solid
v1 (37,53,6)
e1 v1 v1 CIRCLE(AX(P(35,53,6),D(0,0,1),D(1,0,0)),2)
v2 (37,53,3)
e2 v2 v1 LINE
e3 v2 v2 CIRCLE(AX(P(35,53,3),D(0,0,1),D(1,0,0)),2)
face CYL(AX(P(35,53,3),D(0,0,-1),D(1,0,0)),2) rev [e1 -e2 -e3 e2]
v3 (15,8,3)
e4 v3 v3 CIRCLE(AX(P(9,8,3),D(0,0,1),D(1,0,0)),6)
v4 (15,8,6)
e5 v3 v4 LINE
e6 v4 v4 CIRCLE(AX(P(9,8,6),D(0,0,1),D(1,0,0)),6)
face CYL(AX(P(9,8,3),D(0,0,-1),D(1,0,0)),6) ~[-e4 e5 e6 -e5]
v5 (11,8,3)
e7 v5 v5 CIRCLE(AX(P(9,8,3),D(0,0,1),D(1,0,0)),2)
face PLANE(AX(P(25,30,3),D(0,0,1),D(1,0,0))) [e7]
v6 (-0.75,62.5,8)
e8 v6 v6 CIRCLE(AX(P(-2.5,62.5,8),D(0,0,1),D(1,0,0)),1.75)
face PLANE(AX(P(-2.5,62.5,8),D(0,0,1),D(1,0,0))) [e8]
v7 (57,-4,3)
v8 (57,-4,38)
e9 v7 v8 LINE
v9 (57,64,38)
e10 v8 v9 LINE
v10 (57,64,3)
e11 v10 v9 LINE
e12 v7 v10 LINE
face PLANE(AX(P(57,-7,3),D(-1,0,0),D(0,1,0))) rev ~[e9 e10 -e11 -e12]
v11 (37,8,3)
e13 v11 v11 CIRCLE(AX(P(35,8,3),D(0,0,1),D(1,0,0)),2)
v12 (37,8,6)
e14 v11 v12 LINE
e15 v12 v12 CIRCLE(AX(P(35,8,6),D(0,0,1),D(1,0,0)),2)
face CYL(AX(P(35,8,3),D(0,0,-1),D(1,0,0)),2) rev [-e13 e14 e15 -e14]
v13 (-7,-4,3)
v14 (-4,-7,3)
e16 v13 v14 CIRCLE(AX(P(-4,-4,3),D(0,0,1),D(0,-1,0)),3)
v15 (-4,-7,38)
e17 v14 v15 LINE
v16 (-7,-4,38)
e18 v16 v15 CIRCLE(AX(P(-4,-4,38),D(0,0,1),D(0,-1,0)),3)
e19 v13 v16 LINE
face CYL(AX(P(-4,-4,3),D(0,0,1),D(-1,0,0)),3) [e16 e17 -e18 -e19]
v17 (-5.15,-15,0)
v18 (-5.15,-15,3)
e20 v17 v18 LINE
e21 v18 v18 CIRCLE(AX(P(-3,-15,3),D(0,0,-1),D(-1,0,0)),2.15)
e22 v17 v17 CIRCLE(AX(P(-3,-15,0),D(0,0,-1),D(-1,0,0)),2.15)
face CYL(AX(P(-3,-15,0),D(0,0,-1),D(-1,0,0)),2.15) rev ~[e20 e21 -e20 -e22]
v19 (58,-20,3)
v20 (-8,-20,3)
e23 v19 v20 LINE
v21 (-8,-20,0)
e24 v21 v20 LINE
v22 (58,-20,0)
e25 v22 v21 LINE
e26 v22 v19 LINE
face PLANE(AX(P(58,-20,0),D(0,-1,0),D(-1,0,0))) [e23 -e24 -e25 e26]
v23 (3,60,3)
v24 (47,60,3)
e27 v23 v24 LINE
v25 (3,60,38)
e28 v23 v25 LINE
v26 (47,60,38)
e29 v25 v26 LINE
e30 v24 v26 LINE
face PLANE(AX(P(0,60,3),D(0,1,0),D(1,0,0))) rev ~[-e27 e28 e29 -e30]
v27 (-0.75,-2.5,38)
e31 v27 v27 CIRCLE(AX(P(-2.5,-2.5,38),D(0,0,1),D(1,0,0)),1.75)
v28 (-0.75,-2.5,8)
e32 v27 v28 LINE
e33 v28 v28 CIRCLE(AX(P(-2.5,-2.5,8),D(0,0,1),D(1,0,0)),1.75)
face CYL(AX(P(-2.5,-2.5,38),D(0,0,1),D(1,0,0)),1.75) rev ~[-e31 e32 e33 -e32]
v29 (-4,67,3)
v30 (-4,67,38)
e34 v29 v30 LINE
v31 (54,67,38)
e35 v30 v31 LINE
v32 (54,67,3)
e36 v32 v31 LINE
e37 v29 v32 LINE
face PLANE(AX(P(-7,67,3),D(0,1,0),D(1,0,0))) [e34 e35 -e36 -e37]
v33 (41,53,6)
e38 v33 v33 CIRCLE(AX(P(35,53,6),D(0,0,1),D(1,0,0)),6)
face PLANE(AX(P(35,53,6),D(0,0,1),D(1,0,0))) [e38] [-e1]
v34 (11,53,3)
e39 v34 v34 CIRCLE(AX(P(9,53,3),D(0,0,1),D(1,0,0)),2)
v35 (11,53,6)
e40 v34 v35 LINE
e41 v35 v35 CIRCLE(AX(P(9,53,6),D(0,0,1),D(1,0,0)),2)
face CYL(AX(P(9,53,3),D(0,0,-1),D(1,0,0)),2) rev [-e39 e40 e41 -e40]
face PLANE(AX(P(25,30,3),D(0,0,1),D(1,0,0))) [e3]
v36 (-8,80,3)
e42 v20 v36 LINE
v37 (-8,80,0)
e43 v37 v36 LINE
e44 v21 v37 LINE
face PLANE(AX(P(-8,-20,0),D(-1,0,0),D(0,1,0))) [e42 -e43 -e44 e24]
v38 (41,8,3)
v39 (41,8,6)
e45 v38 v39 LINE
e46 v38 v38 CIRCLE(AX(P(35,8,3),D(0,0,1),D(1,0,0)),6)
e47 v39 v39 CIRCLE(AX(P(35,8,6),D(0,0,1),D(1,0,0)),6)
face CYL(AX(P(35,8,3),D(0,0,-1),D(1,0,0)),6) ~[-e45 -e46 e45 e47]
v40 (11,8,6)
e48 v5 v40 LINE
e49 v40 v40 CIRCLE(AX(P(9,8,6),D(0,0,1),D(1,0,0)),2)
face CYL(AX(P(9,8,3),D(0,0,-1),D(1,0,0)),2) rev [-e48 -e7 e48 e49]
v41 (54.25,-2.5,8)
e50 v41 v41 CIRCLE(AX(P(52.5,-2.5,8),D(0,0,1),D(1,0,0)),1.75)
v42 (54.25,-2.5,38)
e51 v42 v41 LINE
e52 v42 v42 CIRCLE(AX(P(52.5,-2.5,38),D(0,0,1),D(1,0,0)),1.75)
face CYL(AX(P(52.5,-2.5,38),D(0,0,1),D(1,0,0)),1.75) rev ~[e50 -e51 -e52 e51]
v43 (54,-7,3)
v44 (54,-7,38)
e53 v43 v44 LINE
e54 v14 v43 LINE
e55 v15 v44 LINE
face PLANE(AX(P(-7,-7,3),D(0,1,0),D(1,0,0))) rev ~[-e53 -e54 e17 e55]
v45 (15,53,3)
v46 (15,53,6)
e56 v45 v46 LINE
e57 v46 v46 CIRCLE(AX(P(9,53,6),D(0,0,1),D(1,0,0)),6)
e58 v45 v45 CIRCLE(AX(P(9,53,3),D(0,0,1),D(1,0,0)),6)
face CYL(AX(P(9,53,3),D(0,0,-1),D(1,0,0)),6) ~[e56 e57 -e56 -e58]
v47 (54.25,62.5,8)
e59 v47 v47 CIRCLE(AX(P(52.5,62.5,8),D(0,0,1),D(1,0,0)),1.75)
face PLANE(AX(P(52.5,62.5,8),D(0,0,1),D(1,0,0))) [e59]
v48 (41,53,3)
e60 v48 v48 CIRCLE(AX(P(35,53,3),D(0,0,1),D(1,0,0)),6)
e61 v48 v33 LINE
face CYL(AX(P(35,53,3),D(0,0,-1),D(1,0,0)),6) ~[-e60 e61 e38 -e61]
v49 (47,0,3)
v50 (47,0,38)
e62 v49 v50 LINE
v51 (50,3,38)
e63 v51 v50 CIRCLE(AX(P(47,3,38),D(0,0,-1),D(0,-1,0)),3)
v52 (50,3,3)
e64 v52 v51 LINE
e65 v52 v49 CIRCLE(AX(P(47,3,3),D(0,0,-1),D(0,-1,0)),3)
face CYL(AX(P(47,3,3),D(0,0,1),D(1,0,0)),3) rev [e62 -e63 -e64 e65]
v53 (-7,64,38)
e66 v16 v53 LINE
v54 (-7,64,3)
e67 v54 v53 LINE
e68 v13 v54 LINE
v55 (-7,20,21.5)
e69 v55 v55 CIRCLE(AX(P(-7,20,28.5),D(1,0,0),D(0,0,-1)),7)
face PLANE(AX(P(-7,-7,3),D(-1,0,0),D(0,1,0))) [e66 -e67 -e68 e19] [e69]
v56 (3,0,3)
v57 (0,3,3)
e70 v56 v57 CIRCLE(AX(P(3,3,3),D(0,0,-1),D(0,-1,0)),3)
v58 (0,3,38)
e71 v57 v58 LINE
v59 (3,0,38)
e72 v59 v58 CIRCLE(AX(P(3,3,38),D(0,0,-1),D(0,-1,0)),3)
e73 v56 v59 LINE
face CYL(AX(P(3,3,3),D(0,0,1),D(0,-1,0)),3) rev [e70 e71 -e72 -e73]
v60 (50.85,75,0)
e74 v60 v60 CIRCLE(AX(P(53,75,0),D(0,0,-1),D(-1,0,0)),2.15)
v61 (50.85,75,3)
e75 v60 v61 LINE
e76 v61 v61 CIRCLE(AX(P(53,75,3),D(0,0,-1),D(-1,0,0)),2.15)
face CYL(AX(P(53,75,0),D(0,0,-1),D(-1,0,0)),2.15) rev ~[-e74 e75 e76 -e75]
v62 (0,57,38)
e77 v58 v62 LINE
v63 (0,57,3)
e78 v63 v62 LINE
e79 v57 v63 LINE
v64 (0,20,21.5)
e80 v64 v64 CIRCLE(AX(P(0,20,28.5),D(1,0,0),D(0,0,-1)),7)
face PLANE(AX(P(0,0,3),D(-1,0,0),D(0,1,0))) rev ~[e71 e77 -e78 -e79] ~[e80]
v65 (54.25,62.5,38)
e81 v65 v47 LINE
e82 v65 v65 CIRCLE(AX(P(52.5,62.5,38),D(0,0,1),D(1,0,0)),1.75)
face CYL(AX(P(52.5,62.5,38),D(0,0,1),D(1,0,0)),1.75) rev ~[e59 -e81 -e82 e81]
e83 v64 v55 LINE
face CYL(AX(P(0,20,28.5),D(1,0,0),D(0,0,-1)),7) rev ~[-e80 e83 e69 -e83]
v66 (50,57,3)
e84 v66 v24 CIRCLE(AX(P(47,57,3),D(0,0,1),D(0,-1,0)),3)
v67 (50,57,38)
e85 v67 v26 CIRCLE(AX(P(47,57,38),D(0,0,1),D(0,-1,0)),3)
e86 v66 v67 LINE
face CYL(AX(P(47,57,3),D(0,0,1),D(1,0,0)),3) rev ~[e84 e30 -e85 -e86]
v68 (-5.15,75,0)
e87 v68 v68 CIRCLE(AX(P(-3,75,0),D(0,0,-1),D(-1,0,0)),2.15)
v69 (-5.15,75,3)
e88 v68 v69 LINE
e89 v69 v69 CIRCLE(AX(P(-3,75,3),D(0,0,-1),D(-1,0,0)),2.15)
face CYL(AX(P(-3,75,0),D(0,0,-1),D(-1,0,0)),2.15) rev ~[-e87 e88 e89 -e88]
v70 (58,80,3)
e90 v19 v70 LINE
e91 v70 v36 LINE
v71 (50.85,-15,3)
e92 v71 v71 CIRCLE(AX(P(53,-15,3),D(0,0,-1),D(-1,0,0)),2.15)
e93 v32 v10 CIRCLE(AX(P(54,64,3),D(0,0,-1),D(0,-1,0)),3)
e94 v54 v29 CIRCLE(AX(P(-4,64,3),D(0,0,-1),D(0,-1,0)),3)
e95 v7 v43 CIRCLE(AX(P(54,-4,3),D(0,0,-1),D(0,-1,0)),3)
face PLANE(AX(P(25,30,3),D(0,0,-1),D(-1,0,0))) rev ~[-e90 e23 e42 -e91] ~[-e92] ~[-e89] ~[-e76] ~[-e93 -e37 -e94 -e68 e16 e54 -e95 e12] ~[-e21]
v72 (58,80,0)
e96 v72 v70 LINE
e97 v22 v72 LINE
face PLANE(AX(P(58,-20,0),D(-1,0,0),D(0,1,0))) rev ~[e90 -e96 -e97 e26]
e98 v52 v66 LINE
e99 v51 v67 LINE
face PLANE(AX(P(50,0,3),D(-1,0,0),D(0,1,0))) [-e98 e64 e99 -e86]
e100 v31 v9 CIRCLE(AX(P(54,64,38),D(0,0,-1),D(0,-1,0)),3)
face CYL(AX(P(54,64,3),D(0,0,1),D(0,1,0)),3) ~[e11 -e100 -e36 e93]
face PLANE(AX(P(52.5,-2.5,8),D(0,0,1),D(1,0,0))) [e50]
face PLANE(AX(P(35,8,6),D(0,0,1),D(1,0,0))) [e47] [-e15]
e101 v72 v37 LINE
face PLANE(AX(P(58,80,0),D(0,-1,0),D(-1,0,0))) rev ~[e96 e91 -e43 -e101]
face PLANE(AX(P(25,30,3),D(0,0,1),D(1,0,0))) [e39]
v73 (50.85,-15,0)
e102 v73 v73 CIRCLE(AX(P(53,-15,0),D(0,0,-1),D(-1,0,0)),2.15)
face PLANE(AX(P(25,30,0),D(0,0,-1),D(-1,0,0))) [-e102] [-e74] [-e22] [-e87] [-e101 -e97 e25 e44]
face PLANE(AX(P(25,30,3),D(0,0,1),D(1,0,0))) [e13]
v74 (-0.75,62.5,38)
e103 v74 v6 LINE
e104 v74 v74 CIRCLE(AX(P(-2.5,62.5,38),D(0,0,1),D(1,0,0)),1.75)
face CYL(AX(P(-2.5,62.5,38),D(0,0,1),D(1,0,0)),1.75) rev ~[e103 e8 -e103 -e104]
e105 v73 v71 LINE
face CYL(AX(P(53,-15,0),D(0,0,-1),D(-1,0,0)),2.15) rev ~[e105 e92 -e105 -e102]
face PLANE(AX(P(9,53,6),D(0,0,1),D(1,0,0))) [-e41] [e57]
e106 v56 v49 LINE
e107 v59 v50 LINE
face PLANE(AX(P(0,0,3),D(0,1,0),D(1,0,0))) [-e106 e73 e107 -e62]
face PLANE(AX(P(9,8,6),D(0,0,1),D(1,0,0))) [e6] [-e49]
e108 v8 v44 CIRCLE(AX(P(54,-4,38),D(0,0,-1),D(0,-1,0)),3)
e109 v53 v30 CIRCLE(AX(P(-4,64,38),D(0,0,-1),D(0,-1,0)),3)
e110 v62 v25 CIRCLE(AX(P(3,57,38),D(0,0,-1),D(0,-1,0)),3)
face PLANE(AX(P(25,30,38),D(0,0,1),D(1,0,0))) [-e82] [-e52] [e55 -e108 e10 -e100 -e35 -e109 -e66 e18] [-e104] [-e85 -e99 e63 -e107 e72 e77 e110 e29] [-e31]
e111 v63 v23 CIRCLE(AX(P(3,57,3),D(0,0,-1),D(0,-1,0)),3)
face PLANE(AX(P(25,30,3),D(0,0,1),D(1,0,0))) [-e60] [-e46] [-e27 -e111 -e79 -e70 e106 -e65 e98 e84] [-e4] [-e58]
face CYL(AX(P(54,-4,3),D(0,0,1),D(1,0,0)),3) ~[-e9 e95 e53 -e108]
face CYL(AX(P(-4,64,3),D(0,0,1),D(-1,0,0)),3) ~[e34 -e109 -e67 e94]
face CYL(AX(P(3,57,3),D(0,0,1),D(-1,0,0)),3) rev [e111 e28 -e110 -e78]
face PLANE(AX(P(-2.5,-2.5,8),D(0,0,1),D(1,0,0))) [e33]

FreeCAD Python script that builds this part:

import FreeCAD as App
import Part
import Sketcher

V = App.Vector
Q = App.Units.Quantity


def edges_at(feature, points):
    """Names of the edges that pass closest to the given points."""
    edges = feature.Shape.Edges
    near = lambda p: min(range(len(edges)), key=lambda i: edges[i].distToShape(Part.Vertex(*p))[0])
    return sorted({f"Edge{near(p) + 1}" for p in points})


def add_polygon(sketch, points):
    """Adds a closed chain of lines whose ends are joined by coincident constraints."""
    first, n = sketch.GeometryCount, len(points)
    for a, b in zip(points, points[1:] + points[:1]):
        sketch.addGeometry(Part.LineSegment(App.Vector(*a, 0), App.Vector(*b, 0)), False)
    for i in range(n):
        sketch.addConstraint(Sketcher.Constraint("Coincident", first + i, 2, first + (i + 1) % n, 1))

doc = App.newDocument("Part")
body = doc.addObject("PartDesign::Body", "Body")

# Sketch on XY plane
sketch1 = body.newObject("Sketcher::SketchObject", "Sketch")
sketch1.AttachmentSupport = (doc.getObject("XY_Plane"), [""])
sketch1.MapMode = "FlatFace"
add_polygon(sketch1, [(0, 60), (0, 0), (50, 0), (50, 60)])  # lines 0-3
sketch1.addConstraint(Sketcher.Constraint("Vertical", 0))
sketch1.addConstraint(Sketcher.Constraint("Horizontal", 1))
sketch1.addConstraint(Sketcher.Constraint("Vertical", 2))
sketch1.addConstraint(Sketcher.Constraint("Horizontal", 3))
sketch1.addConstraint(Sketcher.Constraint("Coincident", 0, 2, -1, 1))
sketch1.addConstraint(Sketcher.Constraint("DistanceX", 1, 1, 1, 2, Q("50 mm")))
sketch1.addConstraint(Sketcher.Constraint("DistanceY", 0, 2, 0, 1, Q("60 mm")))
pad1 = body.newObject("PartDesign::Pad", "Pad")
pad1.Profile = sketch1
pad1.Length = 3
body2 = doc.addObject("PartDesign::Body", "Body001")

# Sketch on XY plane
sketch2 = body2.newObject("Sketcher::SketchObject", "Sketch001")
sketch2.AttachmentSupport = (doc.getObject("XY_Plane001"), [""])
sketch2.MapMode = "FlatFace"
sketch2.AttachmentOffset = App.Placement(V(0, 0, 3), App.Rotation())
add_polygon(sketch2, [(-7, 67), (-7, -7), (57, -7), (57, 67)])  # lines 0-3
add_polygon(sketch2, [(50, 0), (0, 0), (0, 60), (50, 60)])  # lines 4-7
sketch2.addConstraint(Sketcher.Constraint("Vertical", 0))
sketch2.addConstraint(Sketcher.Constraint("Horizontal", 1))
sketch2.addConstraint(Sketcher.Constraint("Vertical", 2))
sketch2.addConstraint(Sketcher.Constraint("Horizontal", 3))
sketch2.addConstraint(Sketcher.Constraint("Horizontal", 4))
sketch2.addConstraint(Sketcher.Constraint("Vertical", 5))
sketch2.addConstraint(Sketcher.Constraint("Horizontal", 6))
sketch2.addConstraint(Sketcher.Constraint("Vertical", 7))
sketch2.addConstraint(Sketcher.Constraint("Coincident", 4, 2, -1, 1))
sketch2.addConstraint(Sketcher.Constraint("DistanceX", 1, 1, 1, 2, Q("64 mm")))
sketch2.addConstraint(Sketcher.Constraint("DistanceX", 4, 2, 4, 1, Q("50 mm")))
sketch2.addConstraint(Sketcher.Constraint("DistanceY", 0, 2, 0, 1, Q("74 mm")))
sketch2.addConstraint(Sketcher.Constraint("DistanceY", 5, 1, 5, 2, Q("60 mm")))
sketch2.addConstraint(Sketcher.Constraint("DistanceX", 0, 2, -1, 1, Q("7 mm")))
sketch2.addConstraint(Sketcher.Constraint("DistanceY", 0, 2, -1, 1, Q("7 mm")))
pad2 = body2.newObject("PartDesign::Pad", "Pad001")
pad2.Profile = sketch2
pad2.Length = 35
body.AllowCompound = True
doc.recompute()

boolean = body.newObject("PartDesign::Boolean", "Boolean")
boolean.Type = "Fuse"
boolean.addObjects([body2])

# Sketch on XY plane
sketch3 = body.newObject("Sketcher::SketchObject", "Sketch002")
sketch3.AttachmentSupport = (doc.getObject("XY_Plane"), [""])
sketch3.MapMode = "FlatFace"
add_polygon(sketch3, [(58, 80), (58, -20), (-8, -20), (-8, 80)])  # lines 0-3
sketch3.addGeometry(Part.Circle(V(53, -15, 0), V(0, 0, 1), 2.15), False)  # 4
sketch3.addGeometry(Part.Circle(V(-3, -15, 0), V(0, 0, 1), 2.15), False)  # 5
sketch3.addGeometry(Part.Circle(V(53, 75, 0), V(0, 0, 1), 2.15), False)  # 6
add_polygon(sketch3, [(0, 0), (50, 0), (50, 60), (0, 60)])  # lines 7-10
sketch3.addGeometry(Part.Circle(V(-3, 75, 0), V(0, 0, 1), 2.15), False)  # 11
sketch3.addConstraint(Sketcher.Constraint("Vertical", 0))
sketch3.addConstraint(Sketcher.Constraint("Horizontal", 1))
sketch3.addConstraint(Sketcher.Constraint("Vertical", 2))
sketch3.addConstraint(Sketcher.Constraint("Horizontal", 3))
sketch3.addConstraint(Sketcher.Constraint("Horizontal", 7))
sketch3.addConstraint(Sketcher.Constraint("Vertical", 8))
sketch3.addConstraint(Sketcher.Constraint("Horizontal", 9))
sketch3.addConstraint(Sketcher.Constraint("Vertical", 10))
sketch3.addConstraint(Sketcher.Constraint("Coincident", 10, 2, -1, 1))
sketch3.addConstraint(Sketcher.Constraint("Equal", 4, 5))
sketch3.addConstraint(Sketcher.Constraint("Equal", 5, 6))
sketch3.addConstraint(Sketcher.Constraint("Equal", 6, 11))
sketch3.addConstraint(Sketcher.Constraint("Horizontal", 4, 3, 5, 3))
sketch3.addConstraint(Sketcher.Constraint("Horizontal", 6, 3, 11, 3))
sketch3.addConstraint(Sketcher.Constraint("Vertical", 4, 3, 6, 3))
sketch3.addConstraint(Sketcher.Constraint("Vertical", 5, 3, 11, 3))
sketch3.addConstraint(Sketcher.Constraint("Diameter", 4, Q("4.3 mm")))
sketch3.addConstraint(Sketcher.Constraint("DistanceX", 1, 2, 1, 1, Q("66 mm")))
sketch3.addConstraint(Sketcher.Constraint("DistanceX", 7, 1, 7, 2, Q("50 mm")))
sketch3.addConstraint(Sketcher.Constraint("DistanceY", 0, 2, 0, 1, Q("100 mm")))
sketch3.addConstraint(Sketcher.Constraint("DistanceY", 8, 1, 8, 2, Q("60 mm")))
sketch3.addConstraint(Sketcher.Constraint("DistanceX", -1, 1, 4, 3, Q("53 mm")))
sketch3.addConstraint(Sketcher.Constraint("DistanceY", 4, 3, -1, 1, Q("15 mm")))
sketch3.addConstraint(Sketcher.Constraint("DistanceX", 5, 3, -1, 1, Q("3 mm")))
sketch3.addConstraint(Sketcher.Constraint("DistanceY", -1, 1, 6, 3, Q("75 mm")))
sketch3.addConstraint(Sketcher.Constraint("DistanceX", -1, 1, 0, 2, Q("58 mm")))
sketch3.addConstraint(Sketcher.Constraint("DistanceY", 0, 2, -1, 1, Q("20 mm")))
pad3 = body.newObject("PartDesign::Pad", "Pad002")
pad3.Profile = sketch3
pad3.Length = 3

# Sketch on XY plane
sketch4 = body.newObject("Sketcher::SketchObject", "Sketch003")
sketch4.AttachmentSupport = (doc.getObject("XY_Plane"), [""])
sketch4.MapMode = "FlatFace"
sketch4.AttachmentOffset = App.Placement(V(0, 0, 3), App.Rotation())
sketch4.addGeometry(Part.Circle(V(9, 53, 0), V(0, 0, 1), 6), False)
sketch4.addGeometry(Part.Circle(V(9, 53, 0), V(0, 0, 1), 2), False)
sketch4.addGeometry(Part.Circle(V(35, 53, 0), V(0, 0, 1), 6), False)
sketch4.addGeometry(Part.Circle(V(35, 53, 0), V(0, 0, 1), 2), False)
sketch4.addGeometry(Part.Circle(V(35, 8, 0), V(0, 0, 1), 6), False)
sketch4.addGeometry(Part.Circle(V(35, 8, 0), V(0, 0, 1), 2), False)
sketch4.addGeometry(Part.Circle(V(9, 8, 0), V(0, 0, 1), 6), False)
sketch4.addGeometry(Part.Circle(V(9, 8, 0), V(0, 0, 1), 2), False)
sketch4.addConstraint(Sketcher.Constraint("Coincident", 1, 3, 0, 3))
sketch4.addConstraint(Sketcher.Constraint("Coincident", 3, 3, 2, 3))
sketch4.addConstraint(Sketcher.Constraint("Coincident", 5, 3, 4, 3))
sketch4.addConstraint(Sketcher.Constraint("Coincident", 7, 3, 6, 3))
sketch4.addConstraint(Sketcher.Constraint("Equal", 0, 2))
sketch4.addConstraint(Sketcher.Constraint("Equal", 1, 3))
sketch4.addConstraint(Sketcher.Constraint("Equal", 2, 4))
sketch4.addConstraint(Sketcher.Constraint("Equal", 3, 5))
sketch4.addConstraint(Sketcher.Constraint("Equal", 4, 6))
sketch4.addConstraint(Sketcher.Constraint("Equal", 5, 7))
sketch4.addConstraint(Sketcher.Constraint("Horizontal", 1, 3, 2, 3))
sketch4.addConstraint(Sketcher.Constraint("Horizontal", 5, 3, 6, 3))
sketch4.addConstraint(Sketcher.Constraint("Vertical", 3, 3, 4, 3))
sketch4.addConstraint(Sketcher.Constraint("Vertical", 1, 3, 6, 3))
sketch4.addConstraint(Sketcher.Constraint("Diameter", 0, Q("12 mm")))
sketch4.addConstraint(Sketcher.Constraint("Diameter", 1, Q("4 mm")))
sketch4.addConstraint(Sketcher.Constraint("DistanceX", -1, 1, 0, 3, Q("9 mm")))
sketch4.addConstraint(Sketcher.Constraint("DistanceY", -1, 1, 0, 3, Q("53 mm")))
sketch4.addConstraint(Sketcher.Constraint("DistanceX", -1, 1, 2, 3, Q("35 mm")))
sketch4.addConstraint(Sketcher.Constraint("DistanceY", -1, 1, 4, 3, Q("8 mm")))
pad4 = body.newObject("PartDesign::Pad", "Pad003")
pad4.Profile = sketch4
pad4.Length = 3
doc.recompute()

fillet = body.newObject("PartDesign::Fillet", "Fillet")
fillet.Base = (pad4, edges_at(pad4, [
    (-7, 67, 20.5),
    (-7, -7, 20.5),
    (57, -7, 20.5),
    (57, 67, 20.5),
]))
fillet.Radius = 3

# Sketch on YZ plane
sketch5 = body.newObject("Sketcher::SketchObject", "Sketch004")
sketch5.AttachmentSupport = (doc.getObject("YZ_Plane"), [""])
sketch5.MapMode = "FlatFace"
sketch5.addGeometry(Part.Circle(V(20, 28.5, 0), V(0, 0, 1), 7), False)
sketch5.addConstraint(Sketcher.Constraint("Diameter", 0, Q("14 mm")))
sketch5.addConstraint(Sketcher.Constraint("DistanceX", -1, 1, 0, 3, Q("20 mm")))
sketch5.addConstraint(Sketcher.Constraint("DistanceY", -1, 1, 0, 3, Q("28.5 mm")))
pocket1 = body.newObject("PartDesign::Pocket", "Pocket")
pocket1.Profile = sketch5
pocket1.Type = "UpToFirst"
doc.recompute()

fillet2 = body.newObject("PartDesign::Fillet", "Fillet001")
fillet2.Base = (pocket1, edges_at(pocket1, [(50, 60, 20.5)]))
fillet2.Radius = 3
doc.recompute()

fillet3 = body.newObject("PartDesign::Fillet", "Fillet002")
fillet3.Base = (fillet2, edges_at(fillet2, [(50, 0, 20.5)]))
fillet3.Radius = 3
doc.recompute()

fillet4 = body.newObject("PartDesign::Fillet", "Fillet003")
fillet4.Base = (fillet3, edges_at(fillet3, [(0, 0, 20.5)]))
fillet4.Radius = 3
doc.recompute()

fillet5 = body.newObject("PartDesign::Fillet", "Fillet004")
fillet5.Base = (fillet4, edges_at(fillet4, [(0, 60, 20.5)]))
fillet5.Radius = 3

# Sketch on XY plane
sketch6 = body.newObject("Sketcher::SketchObject", "Sketch005")
sketch6.AttachmentSupport = (doc.getObject("XY_Plane"), [""])
sketch6.MapMode = "FlatFace"
sketch6.AttachmentOffset = App.Placement(V(0, 0, 38), App.Rotation())
sketch6.addGeometry(Part.Circle(V(-2.5, 62.5, 0), V(0, 0, 1), 1.75), False)
sketch6.addGeometry(Part.Circle(V(52.5, 62.5, 0), V(0, 0, 1), 1.75), False)
sketch6.addGeometry(Part.Circle(V(52.5, -2.5, 0), V(0, 0, 1), 1.75), False)
sketch6.addGeometry(Part.Circle(V(-2.5, -2.5, 0), V(0, 0, 1), 1.75), False)
sketch6.addConstraint(Sketcher.Constraint("Equal", 0, 1))
sketch6.addConstraint(Sketcher.Constraint("Equal", 1, 2))
sketch6.addConstraint(Sketcher.Constraint("Equal", 2, 3))
sketch6.addConstraint(Sketcher.Constraint("Horizontal", 0, 3, 1, 3))
sketch6.addConstraint(Sketcher.Constraint("Horizontal", 2, 3, 3, 3))
sketch6.addConstraint(Sketcher.Constraint("Vertical", 1, 3, 2, 3))
sketch6.addConstraint(Sketcher.Constraint("Vertical", 0, 3, 3, 3))
sketch6.addConstraint(Sketcher.Constraint("Diameter", 0, Q("3.5 mm")))
sketch6.addConstraint(Sketcher.Constraint("DistanceX", 0, 3, 1, 3, Q("55 mm")))
sketch6.addConstraint(Sketcher.Constraint("DistanceY", 2, 3, 1, 3, Q("65 mm")))
sketch6.addConstraint(Sketcher.Constraint("DistanceX", 0, 3, -1, 1, Q("2.5 mm")))
sketch6.addConstraint(Sketcher.Constraint("DistanceY", -1, 1, 0, 3, Q("62.5 mm")))
pocket2 = body.newObject("PartDesign::Pocket", "Pocket001")
pocket2.Profile = sketch6
pocket2.Length = 30

doc.recompute()
